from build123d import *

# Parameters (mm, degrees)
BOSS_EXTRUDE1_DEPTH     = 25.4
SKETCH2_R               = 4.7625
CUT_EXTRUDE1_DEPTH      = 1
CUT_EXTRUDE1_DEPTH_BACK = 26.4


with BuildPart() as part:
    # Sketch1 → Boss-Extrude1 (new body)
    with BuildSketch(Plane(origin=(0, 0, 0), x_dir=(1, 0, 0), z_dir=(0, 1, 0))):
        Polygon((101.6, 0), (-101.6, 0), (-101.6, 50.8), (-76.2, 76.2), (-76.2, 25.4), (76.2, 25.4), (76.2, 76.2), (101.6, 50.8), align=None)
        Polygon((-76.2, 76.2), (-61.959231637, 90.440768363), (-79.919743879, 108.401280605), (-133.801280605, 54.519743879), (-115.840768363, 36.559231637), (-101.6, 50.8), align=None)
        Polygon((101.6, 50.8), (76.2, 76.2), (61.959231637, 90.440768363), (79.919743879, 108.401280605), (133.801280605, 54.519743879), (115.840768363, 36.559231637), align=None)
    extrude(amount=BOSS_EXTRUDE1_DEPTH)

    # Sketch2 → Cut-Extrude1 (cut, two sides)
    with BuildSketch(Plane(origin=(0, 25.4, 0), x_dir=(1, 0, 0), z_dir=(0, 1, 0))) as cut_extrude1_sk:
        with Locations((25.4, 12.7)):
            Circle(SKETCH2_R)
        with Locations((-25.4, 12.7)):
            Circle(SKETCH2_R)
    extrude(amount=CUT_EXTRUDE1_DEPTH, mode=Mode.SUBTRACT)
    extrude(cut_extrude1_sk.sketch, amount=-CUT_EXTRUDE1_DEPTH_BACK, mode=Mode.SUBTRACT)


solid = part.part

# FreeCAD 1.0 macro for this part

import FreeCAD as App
import Part
import Sketcher

V = App.Vector
Q = App.Units.Quantity


def add_polygon(sketch, points):
    """Adds a closed chain of lines whose ends are joined by coincident constraints."""
    first, n = sketch.GeometryCount, len(points)
    for a, b in zip(points, points[1:] + points[:1]):
        sketch.addGeometry(Part.LineSegment(App.Vector(*a, 0), App.Vector(*b, 0)), False)
    for i in range(n):
        sketch.addConstraint(Sketcher.Constraint("Coincident", first + i, 2, first + (i + 1) % n, 1))

doc = App.newDocument("Part")
params = doc.addObject("Spreadsheet::Sheet", "Params")
for row, (alias, value) in enumerate([
    ("sketch1_width", "8 in"),
    ("sketch1_width2", "6 in"),
    ("sketch1_height", "2 in"),
    ("sketch1_length", "1 in"),
    ("sketch1_length2", "3 in"),
    ("pad1_length", "1 in"),
    ("sketch2_diameter", "0.375 in"),
], start=1):
    params.set(f"A{row}", alias)
    params.set(f"B{row}", "=" + value)
    params.setAlias(f"B{row}", alias)

body = doc.addObject("PartDesign::Body", "Body")

# Sketch on XZ plane
sketch1 = body.newObject("Sketcher::SketchObject", "Sketch")
sketch1.AttachmentSupport = (doc.getObject("XZ_Plane"), [""])
sketch1.MapMode = "FlatFace"
add_polygon(sketch1, [(-102, 0), (102, 0), (102, -51), (116, -37), (134, -55), (80, -108), (62, -90), (76, -76), (76, -25), (-76, -25), (-76, -76), (-62, -90), (-80, -108), (-134, -55), (-116, -37), (-102, -51)])  # lines 0-15
sketch1.addConstraint(Sketcher.Constraint("Horizontal", 0))
sketch1.addConstraint(Sketcher.Constraint("Vertical", 1))
sketch1.addConstraint(Sketcher.Constraint("Vertical", 7))
sketch1.addConstraint(Sketcher.Constraint("Horizontal", 8))
sketch1.addConstraint(Sketcher.Constraint("Vertical", 9))
sketch1.addConstraint(Sketcher.Constraint("Vertical", 15))
sketch1.addConstraint(Sketcher.Constraint("Symmetric", 0, 2, 15, 2, -1, 1))
sketch1.addConstraint(Sketcher.Constraint("Symmetric", 6, 2, 9, 2, -2))
sketch1.addConstraint(Sketcher.Constraint("Symmetric", 5, 2, 10, 2, -2))
sketch1.addConstraint(Sketcher.Constraint("Symmetric", 4, 2, 11, 2, -2))
sketch1.addConstraint(Sketcher.Constraint("Symmetric", 3, 2, 12, 2, -2))
sketch1.addConstraint(Sketcher.Constraint("Symmetric", 2, 2, 13, 2, -2))
sketch1.addConstraint(Sketcher.Constraint("Perpendicular", 2, 3))
sketch1.addConstraint(Sketcher.Constraint("Perpendicular", 3, 4))
sketch1.addConstraint(Sketcher.Constraint("Perpendicular", 4, 5))
sketch1.addConstraint(Sketcher.Constraint("Perpendicular", 5, 6))
sketch1.addConstraint(Sketcher.Constraint("Perpendicular", 6, 10))
sketch1.addConstraint(Sketcher.Constraint("Perpendicular", 13, 14))
sketch1.addConstraint(Sketcher.Constraint("Equal", 1, 7))
sketch1.addConstraint(Sketcher.Constraint("Equal", 3, 5))
sketch1.addConstraint(Sketcher.Constraint("Equal", 2, 6))
sketch1.addConstraint(Sketcher.Constraint("DistanceX", 0, 1, 0, 2, Q("8 in")))
sketch1.addConstraint(Sketcher.Constraint("DistanceX", 8, 2, 8, 1, Q("6 in")))
sketch1.addConstraint(Sketcher.Constraint("DistanceY", 1, 2, 1, 1, Q("2 in")))
sketch1.addConstraint(Sketcher.Constraint("Distance", 3, Q("1 in")))
sketch1.addConstraint(Sketcher.Constraint("Distance", 4, Q("3 in")))
sketch1.setExpression("Constraints[37]", "Params.sketch1_width")
sketch1.setExpression("Constraints[38]", "Params.sketch1_width2")
sketch1.setExpression("Constraints[39]", "Params.sketch1_height")
sketch1.setExpression("Constraints[40]", "Params.sketch1_length")
sketch1.setExpression("Constraints[41]", "Params.sketch1_length2")
pad1 = body.newObject("PartDesign::Pad", "Pad")
pad1.Profile = sketch1
pad1.setExpression("Length", "Params.pad1_length")
pad1.Reversed = True

# Sketch on XZ plane
sketch2 = body.newObject("Sketcher::SketchObject", "Sketch001")
sketch2.AttachmentSupport = (doc.getObject("XZ_Plane"), [""])
sketch2.MapMode = "FlatFace"
sketch2.AttachmentOffset = App.Placement(V(0, 0, -1 * 25.4), App.Rotation())
sketch2.addGeometry(Part.Circle(V(25.4, -12.7, 0), V(0, 0, 1), 4.8), False)
sketch2.addGeometry(Part.Circle(V(-25.4, -12.7, 0), V(0, 0, 1), 4.8), False)
sketch2.addConstraint(Sketcher.Constraint("Equal", 0, 1))
sketch2.addConstraint(Sketcher.Constraint("Symmetric", 0, 3, 1, 3, -2))
sketch2.addConstraint(Sketcher.Constraint("Diameter", 0, Q("0.375 in")))
sketch2.addConstraint(Sketcher.Constraint("DistanceX", -1, 1, 0, 3, Q("1 in")))
sketch2.addConstraint(Sketcher.Constraint("DistanceY", 0, 3, -1, 1, Q("0.5 in")))
sketch2.setExpression("Constraints[2]", "Params.sketch2_diameter")
pocket1 = body.newObject("PartDesign::Pocket", "Pocket")
pocket1.Profile = sketch2
pocket1.Type = "ThroughAll"
pocket1.Midplane = True

doc.recompute()
